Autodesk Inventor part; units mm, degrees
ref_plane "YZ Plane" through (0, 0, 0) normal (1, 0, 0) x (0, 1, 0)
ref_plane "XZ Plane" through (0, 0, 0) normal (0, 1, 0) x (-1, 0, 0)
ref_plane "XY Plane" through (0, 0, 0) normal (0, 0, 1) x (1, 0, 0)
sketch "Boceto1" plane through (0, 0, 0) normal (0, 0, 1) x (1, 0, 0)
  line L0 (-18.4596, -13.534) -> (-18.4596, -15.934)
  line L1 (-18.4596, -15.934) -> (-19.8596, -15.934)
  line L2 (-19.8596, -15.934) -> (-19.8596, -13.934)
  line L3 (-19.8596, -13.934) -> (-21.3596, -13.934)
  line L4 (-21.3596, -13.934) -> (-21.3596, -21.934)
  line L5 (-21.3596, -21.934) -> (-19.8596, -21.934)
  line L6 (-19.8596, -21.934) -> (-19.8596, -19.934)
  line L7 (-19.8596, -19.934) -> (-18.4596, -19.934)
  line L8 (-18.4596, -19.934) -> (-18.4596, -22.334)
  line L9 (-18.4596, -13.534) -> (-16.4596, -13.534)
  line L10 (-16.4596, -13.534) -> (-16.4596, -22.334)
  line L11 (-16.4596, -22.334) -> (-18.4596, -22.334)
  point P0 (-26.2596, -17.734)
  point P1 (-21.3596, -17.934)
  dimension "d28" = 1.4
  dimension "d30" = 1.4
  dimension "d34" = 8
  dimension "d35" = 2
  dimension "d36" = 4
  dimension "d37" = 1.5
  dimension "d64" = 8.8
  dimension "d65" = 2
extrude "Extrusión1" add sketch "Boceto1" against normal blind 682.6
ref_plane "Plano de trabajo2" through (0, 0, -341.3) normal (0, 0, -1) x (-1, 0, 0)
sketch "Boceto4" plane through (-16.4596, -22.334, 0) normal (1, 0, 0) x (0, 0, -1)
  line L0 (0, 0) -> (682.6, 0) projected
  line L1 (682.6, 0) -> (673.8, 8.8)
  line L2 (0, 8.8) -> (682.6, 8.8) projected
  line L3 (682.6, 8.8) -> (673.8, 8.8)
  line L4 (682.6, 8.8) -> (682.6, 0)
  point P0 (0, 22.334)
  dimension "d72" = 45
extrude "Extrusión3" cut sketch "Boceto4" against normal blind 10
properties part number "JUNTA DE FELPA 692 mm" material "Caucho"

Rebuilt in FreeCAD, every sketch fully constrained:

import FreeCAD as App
import Part
import Sketcher
from FreeCAD import Vector


def add_polygon(sketch, points):
    """Adds a closed chain of lines whose ends are joined by coincident constraints."""
    first, n = sketch.GeometryCount, len(points)
    for a, b in zip(points, points[1:] + points[:1]):
        sketch.addGeometry(Part.LineSegment(App.Vector(*a, 0), App.Vector(*b, 0)), False)
    for i in range(n):
        sketch.addConstraint(Sketcher.Constraint("Coincident", first + i, 2, first + (i + 1) % n, 1))

doc = App.newDocument("Part")
params = doc.addObject("Spreadsheet::Sheet", "Params")
for row, (alias, value) in enumerate([
    ("sketch1_width", "2 mm"),
    ("sketch1_height", "8 mm"),
    ("sketch1_width2", "1.4 mm"),
    ("sketch1_width3", "1.5 mm"),
    ("sketch1_height2", "8.8 mm"),
    ("pad1_length", "682.6 mm"),
    ("sketch2_width", "8.8 mm"),
    ("pocket1_length", "10 mm"),
], start=1):
    params.set(f"A{row}", alias)
    params.set(f"B{row}", "=" + value)
    params.setAlias(f"B{row}", alias)

body = doc.addObject("PartDesign::Body", "Body")

# Sketch on XY plane
sketch1 = doc.addObject("Sketcher::SketchObject", "Sketch")
body.addObject(sketch1)
sketch1.AttachmentSupport = (doc.XY_Plane, [""])
sketch1.MapMode = "FlatFace"
add_polygon(sketch1, [(-16.4596, -13.534), (-18.4596, -13.534), (-18.4596, -15.934), (-19.8596, -15.934), (-19.8596, -13.934), (-21.3596, -13.934), (-21.3596, -21.934), (-19.8596, -21.934), (-19.8596, -19.934), (-18.4596, -19.934), (-18.4596, -22.334), (-16.4596, -22.334)])  # lines 0-11
sketch1.addConstraint(Sketcher.Constraint("Horizontal", 0))
sketch1.addConstraint(Sketcher.Constraint("Vertical", 1))
sketch1.addConstraint(Sketcher.Constraint("Horizontal", 2))
sketch1.addConstraint(Sketcher.Constraint("Vertical", 3))
sketch1.addConstraint(Sketcher.Constraint("Horizontal", 4))
sketch1.addConstraint(Sketcher.Constraint("Vertical", 5))
sketch1.addConstraint(Sketcher.Constraint("Horizontal", 6))
sketch1.addConstraint(Sketcher.Constraint("Vertical", 7))
sketch1.addConstraint(Sketcher.Constraint("Horizontal", 8))
sketch1.addConstraint(Sketcher.Constraint("Vertical", 9))
sketch1.addConstraint(Sketcher.Constraint("Horizontal", 10))
sketch1.addConstraint(Sketcher.Constraint("Vertical", 11))
sketch1.addConstraint(Sketcher.Constraint("Vertical", 3, 2, 6, 2))
sketch1.addConstraint(Sketcher.Constraint("Vertical", 1, 2, 8, 2))
sketch1.addConstraint(Sketcher.Constraint("Equal", 10, 3))
sketch1.addConstraint(Sketcher.Constraint("Equal", 3, 7))
sketch1.addConstraint(Sketcher.Constraint("Equal", 1, 9))
sketch1.addConstraint(Sketcher.Constraint("DistanceX", 0, 2, 0, 1, 2.0))
sketch1.addConstraint(Sketcher.Constraint("DistanceY", 5, 2, 5, 1, 8.0))
sketch1.addConstraint(Sketcher.Constraint("DistanceX", 2, 2, 2, 1, 1.4))
sketch1.addConstraint(Sketcher.Constraint("DistanceX", 4, 2, 4, 1, 1.5))
sketch1.addConstraint(Sketcher.Constraint("DistanceY", 11, 1, 11, 2, 8.8))
sketch1.addConstraint(Sketcher.Constraint("DistanceY", 0, 2, -1, 1, 13.534))
sketch1.addConstraint(Sketcher.Constraint("DistanceX", 0, 2, -1, 1, 18.4596))
sketch1.setExpression("Constraints[29]", "Params.sketch1_width")
sketch1.setExpression("Constraints[30]", "Params.sketch1_height")
sketch1.setExpression("Constraints[31]", "Params.sketch1_width2")
sketch1.setExpression("Constraints[32]", "Params.sketch1_width3")
sketch1.setExpression("Constraints[33]", "Params.sketch1_height2")
pad1 = doc.addObject("PartDesign::Pad", "Pad")
body.addObject(pad1)
pad1.Profile = sketch1
pad1.setExpression("Length", "Params.pad1_length")
pad1.Reversed = True

# Sketch on YZ plane
sketch2 = doc.addObject("Sketcher::SketchObject", "Sketch001")
body.addObject(sketch2)
sketch2.AttachmentSupport = (doc.YZ_Plane, [""])
sketch2.MapMode = "FlatFace"
sketch2.AttachmentOffset = App.Placement(Vector(0, 0, -16.4596), App.Rotation())
add_polygon(sketch2, [(-13.534, -673.8), (-22.334, -682.6), (-13.534, -682.6)])  # lines 0-2
sketch2.addConstraint(Sketcher.Constraint("Horizontal", 1))
sketch2.addConstraint(Sketcher.Constraint("Vertical", 2))
sketch2.addConstraint(Sketcher.Constraint("Equal", 1, 2))
sketch2.addConstraint(Sketcher.Constraint("DistanceX", 1, 1, 1, 2, 8.8))
sketch2.addConstraint(Sketcher.Constraint("DistanceY", 0, 2, -1, 1, 682.6))
sketch2.addConstraint(Sketcher.Constraint("DistanceX", 0, 2, -1, 1, 22.334))
sketch2.setExpression("Constraints[6]", "Params.sketch2_width")
pocket1 = doc.addObject("PartDesign::Pocket", "Pocket")
body.addObject(pocket1)
pocket1.Profile = sketch2
pocket1.setExpression("Length", "Params.pocket1_length")

doc.recompute()
